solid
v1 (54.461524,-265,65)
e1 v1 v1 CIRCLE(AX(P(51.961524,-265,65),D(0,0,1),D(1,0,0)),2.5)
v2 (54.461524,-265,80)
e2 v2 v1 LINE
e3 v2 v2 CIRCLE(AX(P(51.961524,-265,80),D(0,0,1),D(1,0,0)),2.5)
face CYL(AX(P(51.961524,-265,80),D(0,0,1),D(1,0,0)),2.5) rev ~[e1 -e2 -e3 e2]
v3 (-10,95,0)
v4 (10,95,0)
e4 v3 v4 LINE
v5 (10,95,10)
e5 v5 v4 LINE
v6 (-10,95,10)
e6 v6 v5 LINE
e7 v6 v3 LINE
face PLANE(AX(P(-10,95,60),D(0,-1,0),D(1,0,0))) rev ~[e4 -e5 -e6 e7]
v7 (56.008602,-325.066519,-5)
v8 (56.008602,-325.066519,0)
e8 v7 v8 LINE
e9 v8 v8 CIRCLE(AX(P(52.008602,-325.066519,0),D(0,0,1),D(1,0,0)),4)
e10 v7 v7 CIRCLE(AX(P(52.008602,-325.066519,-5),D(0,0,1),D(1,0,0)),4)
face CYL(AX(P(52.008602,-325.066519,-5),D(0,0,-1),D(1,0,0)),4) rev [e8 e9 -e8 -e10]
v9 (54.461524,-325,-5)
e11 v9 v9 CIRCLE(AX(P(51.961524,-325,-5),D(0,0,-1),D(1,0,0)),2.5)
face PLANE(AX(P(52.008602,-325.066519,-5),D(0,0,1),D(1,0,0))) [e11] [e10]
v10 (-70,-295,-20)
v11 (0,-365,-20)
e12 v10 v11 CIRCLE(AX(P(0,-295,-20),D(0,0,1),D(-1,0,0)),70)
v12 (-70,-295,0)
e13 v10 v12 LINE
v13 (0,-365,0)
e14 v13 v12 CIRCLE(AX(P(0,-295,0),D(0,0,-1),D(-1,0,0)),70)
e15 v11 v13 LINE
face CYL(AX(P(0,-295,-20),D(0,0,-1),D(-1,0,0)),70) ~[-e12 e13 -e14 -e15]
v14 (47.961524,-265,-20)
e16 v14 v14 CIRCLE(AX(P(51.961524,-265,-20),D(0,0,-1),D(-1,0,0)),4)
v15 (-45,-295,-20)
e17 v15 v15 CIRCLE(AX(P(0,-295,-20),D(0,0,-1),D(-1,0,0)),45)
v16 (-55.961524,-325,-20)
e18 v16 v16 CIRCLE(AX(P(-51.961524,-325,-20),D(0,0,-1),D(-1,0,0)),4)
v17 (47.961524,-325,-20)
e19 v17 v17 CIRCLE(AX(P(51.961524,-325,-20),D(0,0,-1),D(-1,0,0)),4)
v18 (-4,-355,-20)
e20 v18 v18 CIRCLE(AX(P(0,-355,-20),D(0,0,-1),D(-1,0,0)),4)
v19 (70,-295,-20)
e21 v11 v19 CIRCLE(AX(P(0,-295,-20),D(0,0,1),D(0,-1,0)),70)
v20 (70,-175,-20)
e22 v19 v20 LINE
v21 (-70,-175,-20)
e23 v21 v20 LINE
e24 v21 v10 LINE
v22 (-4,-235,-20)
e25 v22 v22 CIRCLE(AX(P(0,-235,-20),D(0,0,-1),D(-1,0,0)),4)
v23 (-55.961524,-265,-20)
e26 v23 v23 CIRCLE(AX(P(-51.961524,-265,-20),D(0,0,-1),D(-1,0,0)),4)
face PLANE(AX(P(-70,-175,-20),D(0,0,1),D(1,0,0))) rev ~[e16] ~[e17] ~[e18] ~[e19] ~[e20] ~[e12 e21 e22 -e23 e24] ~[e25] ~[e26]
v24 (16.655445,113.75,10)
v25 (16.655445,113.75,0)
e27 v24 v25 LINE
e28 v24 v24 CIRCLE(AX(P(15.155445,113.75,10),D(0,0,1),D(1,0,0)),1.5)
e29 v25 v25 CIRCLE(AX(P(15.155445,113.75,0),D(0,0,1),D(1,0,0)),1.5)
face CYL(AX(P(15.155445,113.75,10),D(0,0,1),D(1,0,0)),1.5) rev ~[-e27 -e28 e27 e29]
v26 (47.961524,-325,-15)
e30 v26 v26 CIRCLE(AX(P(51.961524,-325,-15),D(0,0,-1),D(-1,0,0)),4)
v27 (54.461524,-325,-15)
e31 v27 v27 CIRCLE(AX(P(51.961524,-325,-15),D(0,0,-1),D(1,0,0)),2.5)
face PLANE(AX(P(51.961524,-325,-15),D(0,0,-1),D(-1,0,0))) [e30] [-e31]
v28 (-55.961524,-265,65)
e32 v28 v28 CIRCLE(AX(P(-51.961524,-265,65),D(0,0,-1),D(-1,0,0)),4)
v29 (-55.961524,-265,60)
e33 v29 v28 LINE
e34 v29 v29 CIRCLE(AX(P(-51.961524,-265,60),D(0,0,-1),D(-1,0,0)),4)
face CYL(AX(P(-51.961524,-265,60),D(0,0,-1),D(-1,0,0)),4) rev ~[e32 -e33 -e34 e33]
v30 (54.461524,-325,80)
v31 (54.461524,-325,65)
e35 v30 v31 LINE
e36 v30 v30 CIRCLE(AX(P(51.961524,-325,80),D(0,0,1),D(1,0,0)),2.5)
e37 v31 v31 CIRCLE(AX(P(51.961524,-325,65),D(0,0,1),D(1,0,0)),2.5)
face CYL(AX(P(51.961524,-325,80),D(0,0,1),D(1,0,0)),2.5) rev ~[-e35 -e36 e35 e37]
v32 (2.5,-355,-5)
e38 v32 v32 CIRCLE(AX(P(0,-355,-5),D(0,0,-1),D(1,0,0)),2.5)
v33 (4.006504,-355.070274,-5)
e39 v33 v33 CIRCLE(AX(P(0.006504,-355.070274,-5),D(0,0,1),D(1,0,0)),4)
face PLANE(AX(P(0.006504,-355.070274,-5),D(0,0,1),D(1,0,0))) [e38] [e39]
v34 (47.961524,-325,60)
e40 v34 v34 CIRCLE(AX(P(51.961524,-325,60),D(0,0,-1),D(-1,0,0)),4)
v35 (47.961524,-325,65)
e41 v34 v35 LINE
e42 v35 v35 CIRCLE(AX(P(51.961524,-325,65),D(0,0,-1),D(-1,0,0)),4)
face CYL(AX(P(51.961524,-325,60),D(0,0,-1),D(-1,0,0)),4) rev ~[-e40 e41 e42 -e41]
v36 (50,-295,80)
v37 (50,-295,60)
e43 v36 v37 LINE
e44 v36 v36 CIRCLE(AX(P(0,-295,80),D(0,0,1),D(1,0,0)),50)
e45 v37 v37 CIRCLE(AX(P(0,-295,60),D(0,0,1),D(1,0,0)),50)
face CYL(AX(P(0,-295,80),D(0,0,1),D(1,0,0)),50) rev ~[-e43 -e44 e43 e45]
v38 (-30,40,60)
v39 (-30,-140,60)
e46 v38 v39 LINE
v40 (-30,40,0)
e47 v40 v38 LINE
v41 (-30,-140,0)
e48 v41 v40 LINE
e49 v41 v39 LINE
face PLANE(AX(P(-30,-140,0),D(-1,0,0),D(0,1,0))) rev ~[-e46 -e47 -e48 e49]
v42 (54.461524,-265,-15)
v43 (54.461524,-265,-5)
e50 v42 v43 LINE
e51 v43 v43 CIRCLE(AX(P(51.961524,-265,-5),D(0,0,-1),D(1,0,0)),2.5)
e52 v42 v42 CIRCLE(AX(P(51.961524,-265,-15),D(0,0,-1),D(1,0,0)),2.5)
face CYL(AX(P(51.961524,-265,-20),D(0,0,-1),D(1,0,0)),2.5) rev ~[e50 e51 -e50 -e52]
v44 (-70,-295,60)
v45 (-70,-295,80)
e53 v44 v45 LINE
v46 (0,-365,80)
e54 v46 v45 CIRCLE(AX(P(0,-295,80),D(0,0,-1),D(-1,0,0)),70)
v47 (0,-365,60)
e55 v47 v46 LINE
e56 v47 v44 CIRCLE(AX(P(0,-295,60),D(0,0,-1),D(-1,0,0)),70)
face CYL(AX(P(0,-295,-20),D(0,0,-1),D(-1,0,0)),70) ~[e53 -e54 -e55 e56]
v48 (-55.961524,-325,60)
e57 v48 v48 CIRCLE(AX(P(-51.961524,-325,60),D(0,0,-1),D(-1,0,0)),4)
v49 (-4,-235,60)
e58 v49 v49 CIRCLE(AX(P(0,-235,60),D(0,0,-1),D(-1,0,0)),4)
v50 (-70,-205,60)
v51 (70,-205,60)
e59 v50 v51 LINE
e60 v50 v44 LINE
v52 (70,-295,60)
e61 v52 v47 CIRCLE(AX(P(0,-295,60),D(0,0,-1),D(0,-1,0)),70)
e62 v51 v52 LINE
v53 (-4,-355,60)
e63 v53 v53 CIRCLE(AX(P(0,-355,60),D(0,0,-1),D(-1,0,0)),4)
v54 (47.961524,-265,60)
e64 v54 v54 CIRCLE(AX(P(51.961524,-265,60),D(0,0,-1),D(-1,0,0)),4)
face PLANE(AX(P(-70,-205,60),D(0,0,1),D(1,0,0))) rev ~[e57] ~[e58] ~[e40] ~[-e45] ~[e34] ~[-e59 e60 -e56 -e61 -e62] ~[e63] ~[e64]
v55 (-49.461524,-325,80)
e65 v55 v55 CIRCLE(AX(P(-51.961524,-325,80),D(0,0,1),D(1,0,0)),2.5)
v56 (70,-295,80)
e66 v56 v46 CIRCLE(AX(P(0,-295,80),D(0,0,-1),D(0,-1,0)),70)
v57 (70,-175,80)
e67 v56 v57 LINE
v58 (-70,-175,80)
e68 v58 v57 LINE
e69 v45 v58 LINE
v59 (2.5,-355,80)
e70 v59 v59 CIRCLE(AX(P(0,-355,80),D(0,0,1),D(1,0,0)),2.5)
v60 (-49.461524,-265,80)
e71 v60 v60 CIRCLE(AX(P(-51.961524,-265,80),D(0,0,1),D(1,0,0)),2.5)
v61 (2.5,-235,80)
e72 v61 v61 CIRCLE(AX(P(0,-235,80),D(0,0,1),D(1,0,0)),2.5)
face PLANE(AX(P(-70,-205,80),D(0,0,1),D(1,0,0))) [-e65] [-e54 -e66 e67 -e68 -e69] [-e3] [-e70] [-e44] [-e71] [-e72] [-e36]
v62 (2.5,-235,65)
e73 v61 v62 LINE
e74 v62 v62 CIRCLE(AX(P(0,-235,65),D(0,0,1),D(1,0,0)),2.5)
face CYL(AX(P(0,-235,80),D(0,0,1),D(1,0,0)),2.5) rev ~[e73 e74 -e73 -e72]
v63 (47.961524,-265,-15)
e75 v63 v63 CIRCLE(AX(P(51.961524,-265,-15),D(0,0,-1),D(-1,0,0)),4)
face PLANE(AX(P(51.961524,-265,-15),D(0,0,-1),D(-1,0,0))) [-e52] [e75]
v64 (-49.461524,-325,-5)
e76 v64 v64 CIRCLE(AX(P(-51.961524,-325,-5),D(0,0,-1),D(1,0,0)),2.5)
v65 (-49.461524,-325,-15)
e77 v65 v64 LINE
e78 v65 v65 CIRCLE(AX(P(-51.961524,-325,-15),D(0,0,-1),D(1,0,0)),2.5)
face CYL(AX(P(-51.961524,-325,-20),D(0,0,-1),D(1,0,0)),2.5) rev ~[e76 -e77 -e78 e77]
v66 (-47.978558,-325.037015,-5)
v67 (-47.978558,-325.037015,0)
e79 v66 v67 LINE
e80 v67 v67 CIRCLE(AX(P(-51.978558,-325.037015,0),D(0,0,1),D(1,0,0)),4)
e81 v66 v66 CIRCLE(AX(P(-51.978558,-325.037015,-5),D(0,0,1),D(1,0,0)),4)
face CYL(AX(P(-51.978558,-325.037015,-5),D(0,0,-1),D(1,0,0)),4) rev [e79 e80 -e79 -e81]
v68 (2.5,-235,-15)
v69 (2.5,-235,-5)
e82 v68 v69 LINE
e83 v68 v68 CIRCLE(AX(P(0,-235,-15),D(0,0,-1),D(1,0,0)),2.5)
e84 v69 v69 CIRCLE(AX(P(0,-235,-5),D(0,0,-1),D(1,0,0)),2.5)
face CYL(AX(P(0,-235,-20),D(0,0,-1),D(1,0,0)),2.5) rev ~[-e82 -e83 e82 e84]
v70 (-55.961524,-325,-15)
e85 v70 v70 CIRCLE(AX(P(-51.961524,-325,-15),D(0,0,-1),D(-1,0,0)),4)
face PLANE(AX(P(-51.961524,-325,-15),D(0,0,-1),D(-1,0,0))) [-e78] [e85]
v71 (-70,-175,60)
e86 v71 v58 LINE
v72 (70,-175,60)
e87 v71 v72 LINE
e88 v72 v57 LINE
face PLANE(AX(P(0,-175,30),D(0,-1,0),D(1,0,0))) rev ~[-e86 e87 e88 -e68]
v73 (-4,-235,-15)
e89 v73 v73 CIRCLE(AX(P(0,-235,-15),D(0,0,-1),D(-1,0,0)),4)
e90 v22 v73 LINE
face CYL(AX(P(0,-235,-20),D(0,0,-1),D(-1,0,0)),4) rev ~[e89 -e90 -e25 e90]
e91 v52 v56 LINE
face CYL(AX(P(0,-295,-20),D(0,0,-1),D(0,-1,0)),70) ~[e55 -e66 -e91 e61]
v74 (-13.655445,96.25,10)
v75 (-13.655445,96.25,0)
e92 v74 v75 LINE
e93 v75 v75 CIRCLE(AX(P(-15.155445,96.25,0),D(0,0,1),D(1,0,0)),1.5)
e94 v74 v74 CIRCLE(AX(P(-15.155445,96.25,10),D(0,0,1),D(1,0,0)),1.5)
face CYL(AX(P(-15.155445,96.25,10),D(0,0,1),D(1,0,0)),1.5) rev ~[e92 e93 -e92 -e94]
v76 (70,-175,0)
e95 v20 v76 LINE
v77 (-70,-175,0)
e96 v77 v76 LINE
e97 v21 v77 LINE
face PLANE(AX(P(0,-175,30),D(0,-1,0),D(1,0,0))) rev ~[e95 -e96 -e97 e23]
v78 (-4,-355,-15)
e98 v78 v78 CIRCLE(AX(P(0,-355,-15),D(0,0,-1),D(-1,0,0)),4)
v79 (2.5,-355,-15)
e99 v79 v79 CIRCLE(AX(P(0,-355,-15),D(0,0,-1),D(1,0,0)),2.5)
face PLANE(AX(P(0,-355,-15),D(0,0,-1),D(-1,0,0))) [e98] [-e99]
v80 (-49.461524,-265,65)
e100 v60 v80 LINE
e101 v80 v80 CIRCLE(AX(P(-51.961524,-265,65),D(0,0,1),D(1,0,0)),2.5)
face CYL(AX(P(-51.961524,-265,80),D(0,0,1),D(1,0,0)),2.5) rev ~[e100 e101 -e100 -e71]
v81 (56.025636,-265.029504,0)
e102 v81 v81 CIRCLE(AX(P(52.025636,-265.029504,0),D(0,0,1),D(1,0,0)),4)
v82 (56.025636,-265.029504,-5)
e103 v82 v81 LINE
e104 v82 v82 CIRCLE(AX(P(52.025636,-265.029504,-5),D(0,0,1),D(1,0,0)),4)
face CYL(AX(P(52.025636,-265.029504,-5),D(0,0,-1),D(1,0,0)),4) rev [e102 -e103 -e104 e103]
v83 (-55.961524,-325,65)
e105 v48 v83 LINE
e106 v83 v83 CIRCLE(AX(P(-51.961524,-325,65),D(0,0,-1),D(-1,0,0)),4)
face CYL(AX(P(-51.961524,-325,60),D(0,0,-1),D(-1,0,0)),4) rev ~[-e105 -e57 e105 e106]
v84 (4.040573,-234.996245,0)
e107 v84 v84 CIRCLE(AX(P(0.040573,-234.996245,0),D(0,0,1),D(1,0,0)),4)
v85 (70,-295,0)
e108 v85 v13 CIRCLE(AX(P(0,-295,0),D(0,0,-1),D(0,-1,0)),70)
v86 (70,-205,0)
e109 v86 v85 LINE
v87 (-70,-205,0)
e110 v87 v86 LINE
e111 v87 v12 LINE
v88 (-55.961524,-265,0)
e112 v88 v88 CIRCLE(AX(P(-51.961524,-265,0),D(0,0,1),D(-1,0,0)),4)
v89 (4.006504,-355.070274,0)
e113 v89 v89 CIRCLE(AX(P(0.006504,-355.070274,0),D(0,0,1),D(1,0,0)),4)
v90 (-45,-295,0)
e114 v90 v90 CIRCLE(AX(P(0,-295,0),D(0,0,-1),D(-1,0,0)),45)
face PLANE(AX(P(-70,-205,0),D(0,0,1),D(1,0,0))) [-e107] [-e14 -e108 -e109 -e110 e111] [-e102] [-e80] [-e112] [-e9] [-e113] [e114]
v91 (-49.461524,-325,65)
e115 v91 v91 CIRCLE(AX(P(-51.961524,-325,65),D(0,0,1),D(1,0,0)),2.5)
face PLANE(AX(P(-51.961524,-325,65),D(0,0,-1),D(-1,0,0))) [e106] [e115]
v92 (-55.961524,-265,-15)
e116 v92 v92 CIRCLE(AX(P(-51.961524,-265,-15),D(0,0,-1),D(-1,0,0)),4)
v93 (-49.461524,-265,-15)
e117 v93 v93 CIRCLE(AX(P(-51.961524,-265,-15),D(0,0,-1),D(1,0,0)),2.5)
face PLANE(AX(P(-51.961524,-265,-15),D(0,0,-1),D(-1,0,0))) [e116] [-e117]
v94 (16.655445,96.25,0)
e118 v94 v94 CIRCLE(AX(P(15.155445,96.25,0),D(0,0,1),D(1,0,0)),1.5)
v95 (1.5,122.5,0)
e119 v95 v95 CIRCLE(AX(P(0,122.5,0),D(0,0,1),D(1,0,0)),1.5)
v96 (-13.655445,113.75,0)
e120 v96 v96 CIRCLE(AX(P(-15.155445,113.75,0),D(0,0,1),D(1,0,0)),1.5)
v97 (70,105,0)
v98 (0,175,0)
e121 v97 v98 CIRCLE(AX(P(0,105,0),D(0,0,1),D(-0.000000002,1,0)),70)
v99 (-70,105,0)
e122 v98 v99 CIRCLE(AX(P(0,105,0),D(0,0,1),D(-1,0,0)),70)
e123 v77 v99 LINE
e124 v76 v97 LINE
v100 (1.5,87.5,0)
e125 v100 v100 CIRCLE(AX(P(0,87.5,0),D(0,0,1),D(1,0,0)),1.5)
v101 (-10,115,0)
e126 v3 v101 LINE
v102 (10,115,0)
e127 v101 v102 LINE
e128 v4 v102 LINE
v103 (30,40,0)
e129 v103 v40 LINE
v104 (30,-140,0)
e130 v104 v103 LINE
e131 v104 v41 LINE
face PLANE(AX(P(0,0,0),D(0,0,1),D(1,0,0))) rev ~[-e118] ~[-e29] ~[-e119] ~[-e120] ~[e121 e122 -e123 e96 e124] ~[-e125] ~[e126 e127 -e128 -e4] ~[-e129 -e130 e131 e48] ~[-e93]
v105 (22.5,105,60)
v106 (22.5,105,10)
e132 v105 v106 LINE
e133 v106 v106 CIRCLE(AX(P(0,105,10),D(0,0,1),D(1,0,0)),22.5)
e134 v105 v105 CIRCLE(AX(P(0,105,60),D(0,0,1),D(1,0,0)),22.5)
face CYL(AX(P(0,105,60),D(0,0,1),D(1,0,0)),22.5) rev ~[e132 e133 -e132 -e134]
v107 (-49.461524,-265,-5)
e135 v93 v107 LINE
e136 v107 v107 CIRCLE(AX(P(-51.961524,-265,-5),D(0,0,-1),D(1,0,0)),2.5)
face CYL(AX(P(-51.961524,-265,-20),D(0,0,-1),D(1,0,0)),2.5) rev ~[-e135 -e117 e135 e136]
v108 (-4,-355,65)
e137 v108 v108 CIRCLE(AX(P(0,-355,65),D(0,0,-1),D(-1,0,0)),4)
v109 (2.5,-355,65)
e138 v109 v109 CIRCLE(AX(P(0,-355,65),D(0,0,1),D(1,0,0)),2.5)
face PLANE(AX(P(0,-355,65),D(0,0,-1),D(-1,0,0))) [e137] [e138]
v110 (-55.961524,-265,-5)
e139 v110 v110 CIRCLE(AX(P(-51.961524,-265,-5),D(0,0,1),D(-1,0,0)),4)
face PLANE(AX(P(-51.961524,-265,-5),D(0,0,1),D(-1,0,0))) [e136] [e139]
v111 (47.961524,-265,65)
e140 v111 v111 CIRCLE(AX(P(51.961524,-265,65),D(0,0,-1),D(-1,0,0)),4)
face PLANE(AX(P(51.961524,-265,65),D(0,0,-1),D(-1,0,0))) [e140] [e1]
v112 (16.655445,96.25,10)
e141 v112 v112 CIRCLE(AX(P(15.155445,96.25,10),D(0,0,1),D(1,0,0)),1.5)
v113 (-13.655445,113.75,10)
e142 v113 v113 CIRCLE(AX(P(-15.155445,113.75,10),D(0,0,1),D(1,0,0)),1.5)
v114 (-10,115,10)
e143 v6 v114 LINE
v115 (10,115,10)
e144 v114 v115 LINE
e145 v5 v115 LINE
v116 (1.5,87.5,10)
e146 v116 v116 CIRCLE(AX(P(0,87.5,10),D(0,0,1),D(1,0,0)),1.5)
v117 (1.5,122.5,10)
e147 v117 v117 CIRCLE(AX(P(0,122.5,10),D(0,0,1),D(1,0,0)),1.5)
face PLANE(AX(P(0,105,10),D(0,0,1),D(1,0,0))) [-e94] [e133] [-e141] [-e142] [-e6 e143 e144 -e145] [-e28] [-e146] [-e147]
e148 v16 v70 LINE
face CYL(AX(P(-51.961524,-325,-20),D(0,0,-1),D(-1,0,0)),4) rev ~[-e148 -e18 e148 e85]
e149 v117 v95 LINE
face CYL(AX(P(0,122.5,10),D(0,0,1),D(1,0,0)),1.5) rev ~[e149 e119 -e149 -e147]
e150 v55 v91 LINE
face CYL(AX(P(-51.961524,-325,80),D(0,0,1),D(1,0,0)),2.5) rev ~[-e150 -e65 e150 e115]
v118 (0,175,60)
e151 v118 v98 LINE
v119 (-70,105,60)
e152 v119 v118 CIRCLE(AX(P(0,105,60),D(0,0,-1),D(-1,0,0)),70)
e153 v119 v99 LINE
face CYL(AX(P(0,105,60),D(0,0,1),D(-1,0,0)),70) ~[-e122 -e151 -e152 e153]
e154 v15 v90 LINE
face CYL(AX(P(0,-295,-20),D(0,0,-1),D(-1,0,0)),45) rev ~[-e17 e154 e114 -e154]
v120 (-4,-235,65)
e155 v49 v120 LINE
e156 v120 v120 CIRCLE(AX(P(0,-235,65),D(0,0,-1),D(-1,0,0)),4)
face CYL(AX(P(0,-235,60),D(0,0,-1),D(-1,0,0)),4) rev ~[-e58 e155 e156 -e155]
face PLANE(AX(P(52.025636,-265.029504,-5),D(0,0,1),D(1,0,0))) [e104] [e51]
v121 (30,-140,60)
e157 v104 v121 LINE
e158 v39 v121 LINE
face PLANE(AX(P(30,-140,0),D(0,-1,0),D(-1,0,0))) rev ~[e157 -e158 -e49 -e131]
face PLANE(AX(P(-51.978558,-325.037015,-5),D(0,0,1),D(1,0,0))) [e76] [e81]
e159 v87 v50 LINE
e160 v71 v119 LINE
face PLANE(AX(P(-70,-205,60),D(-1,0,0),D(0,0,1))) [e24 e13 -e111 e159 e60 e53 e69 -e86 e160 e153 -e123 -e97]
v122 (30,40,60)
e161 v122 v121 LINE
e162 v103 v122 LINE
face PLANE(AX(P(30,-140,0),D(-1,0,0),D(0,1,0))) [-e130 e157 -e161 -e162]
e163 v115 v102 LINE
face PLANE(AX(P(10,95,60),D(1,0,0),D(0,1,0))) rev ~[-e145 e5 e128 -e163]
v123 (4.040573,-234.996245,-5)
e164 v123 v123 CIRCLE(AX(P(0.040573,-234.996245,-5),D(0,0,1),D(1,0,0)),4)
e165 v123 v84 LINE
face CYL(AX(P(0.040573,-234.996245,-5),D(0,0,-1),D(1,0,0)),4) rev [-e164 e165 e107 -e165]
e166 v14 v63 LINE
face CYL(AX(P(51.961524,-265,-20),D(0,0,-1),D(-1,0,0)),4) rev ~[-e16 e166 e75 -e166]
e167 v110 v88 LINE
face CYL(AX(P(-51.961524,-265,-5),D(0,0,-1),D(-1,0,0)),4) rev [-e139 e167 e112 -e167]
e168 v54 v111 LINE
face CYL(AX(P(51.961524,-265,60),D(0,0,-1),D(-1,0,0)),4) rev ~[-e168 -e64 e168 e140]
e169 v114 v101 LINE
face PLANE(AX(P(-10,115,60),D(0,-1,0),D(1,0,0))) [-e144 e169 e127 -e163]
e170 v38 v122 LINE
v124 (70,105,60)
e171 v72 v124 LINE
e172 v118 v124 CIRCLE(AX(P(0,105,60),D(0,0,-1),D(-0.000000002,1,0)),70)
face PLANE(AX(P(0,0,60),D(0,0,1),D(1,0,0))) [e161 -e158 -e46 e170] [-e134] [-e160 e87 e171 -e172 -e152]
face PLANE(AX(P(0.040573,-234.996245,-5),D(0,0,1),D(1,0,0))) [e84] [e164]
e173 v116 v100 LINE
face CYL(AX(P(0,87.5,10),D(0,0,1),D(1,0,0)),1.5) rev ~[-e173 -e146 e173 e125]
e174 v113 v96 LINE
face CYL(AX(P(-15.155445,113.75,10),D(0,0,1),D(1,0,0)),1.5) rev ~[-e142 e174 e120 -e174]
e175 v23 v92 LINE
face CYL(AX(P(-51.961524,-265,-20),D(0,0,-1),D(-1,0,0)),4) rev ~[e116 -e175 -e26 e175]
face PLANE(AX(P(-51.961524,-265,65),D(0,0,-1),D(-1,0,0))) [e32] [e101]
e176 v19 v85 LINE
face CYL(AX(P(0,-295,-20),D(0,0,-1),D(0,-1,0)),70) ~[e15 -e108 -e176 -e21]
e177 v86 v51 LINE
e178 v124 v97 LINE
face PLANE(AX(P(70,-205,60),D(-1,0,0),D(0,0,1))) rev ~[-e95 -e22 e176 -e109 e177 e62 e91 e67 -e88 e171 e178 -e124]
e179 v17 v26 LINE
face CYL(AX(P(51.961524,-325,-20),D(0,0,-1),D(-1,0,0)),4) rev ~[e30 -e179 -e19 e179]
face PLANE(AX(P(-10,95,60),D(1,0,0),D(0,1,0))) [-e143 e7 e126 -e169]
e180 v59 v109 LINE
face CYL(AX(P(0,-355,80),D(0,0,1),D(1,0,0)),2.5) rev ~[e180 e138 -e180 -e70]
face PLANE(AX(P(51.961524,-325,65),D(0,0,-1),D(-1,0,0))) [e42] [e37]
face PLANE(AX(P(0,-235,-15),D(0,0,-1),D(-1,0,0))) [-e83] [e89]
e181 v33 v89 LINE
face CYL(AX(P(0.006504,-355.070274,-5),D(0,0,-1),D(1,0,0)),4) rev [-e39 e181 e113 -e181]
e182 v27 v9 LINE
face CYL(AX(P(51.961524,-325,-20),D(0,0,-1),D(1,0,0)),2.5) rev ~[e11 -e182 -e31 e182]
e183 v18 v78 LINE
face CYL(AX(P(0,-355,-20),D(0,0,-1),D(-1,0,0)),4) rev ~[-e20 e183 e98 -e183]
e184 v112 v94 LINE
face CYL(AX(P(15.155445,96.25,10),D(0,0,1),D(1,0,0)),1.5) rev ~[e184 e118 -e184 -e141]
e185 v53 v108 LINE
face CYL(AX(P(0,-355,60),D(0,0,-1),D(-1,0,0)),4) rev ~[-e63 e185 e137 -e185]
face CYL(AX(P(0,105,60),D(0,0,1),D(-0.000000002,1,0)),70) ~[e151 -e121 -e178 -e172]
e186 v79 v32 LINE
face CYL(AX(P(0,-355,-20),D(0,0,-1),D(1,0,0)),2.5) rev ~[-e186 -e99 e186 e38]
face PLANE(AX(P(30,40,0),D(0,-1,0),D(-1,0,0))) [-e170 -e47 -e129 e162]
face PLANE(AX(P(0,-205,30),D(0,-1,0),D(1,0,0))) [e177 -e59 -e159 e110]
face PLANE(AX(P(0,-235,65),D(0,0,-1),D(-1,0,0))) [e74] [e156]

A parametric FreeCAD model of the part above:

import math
import FreeCAD as App
import Part
import Sketcher

V = App.Vector


def add_polygon(sketch, points):
    """Adds a closed chain of lines whose ends are joined by coincident constraints."""
    first, n = sketch.GeometryCount, len(points)
    for a, b in zip(points, points[1:] + points[:1]):
        sketch.addGeometry(Part.LineSegment(App.Vector(*a, 0), App.Vector(*b, 0)), False)
    for i in range(n):
        sketch.addConstraint(Sketcher.Constraint("Coincident", first + i, 2, first + (i + 1) % n, 1))

doc = App.newDocument("Part")
body = doc.addObject("PartDesign::Body", "Body")

# Sketch on XY plane
sketch1 = body.newObject("Sketcher::SketchObject", "Sketch")
sketch1.AttachmentSupport = (doc.getObject("XY_Plane"), [""])
sketch1.MapMode = "FlatFace"
add_polygon(sketch1, [(-70, 175), (-70, -175), (70, -175), (70, 175)])  # lines 0-3
sketch1.addConstraint([
    Sketcher.Constraint("Vertical", 0),
    Sketcher.Constraint("Horizontal", 1),
    Sketcher.Constraint("Vertical", 2),
    Sketcher.Constraint("Horizontal", 3),
    Sketcher.Constraint("Symmetric", 0, 2, 2, 2, -1, 1),
    Sketcher.Constraint("DistanceX", 1, 1, 1, 2, 140.0),
    Sketcher.Constraint("DistanceY", 0, 2, 0, 1, 350.0),
])
pad1 = body.newObject("PartDesign::Pad", "Pad")
pad1.Profile = sketch1
pad1.Length = 60

# Sketch on XY plane
sketch2 = body.newObject("Sketcher::SketchObject", "Sketch001")
sketch2.AttachmentSupport = (doc.getObject("XY_Plane"), [""])
sketch2.MapMode = "FlatFace"
sketch2.AttachmentOffset = App.Placement(V(0, 0, 60), App.Rotation())
sketch2.addGeometry([
    Part.LineSegment(V(0, 175, 0), V(-70, 175, 0)),
    Part.LineSegment(V(-70, 175, 0), V(-70, 105, 0)),
    Part.ArcOfCircle(Part.Circle(V(0, 105, 0), V(0, 0, 1), 70), math.radians(90), math.radians(180)),
], False)
sketch2.addConstraint([
    Sketcher.Constraint("Coincident", 0, 2, 1, 1),
    Sketcher.Constraint("Tangent", 1, 2, 2, 2),
    Sketcher.Constraint("Tangent", 2, 1, 0, 1),
    Sketcher.Constraint("Horizontal", 0),
    Sketcher.Constraint("Vertical", 1),
    Sketcher.Constraint("PointOnObject", 2, 3, -2),
    Sketcher.Constraint("Radius", 2, 70.0),
    Sketcher.Constraint("DistanceY", -1, 1, 2, 3, 105.0),
])
pocket1 = body.newObject("PartDesign::Pocket", "Pocket")
pocket1.Profile = sketch2
pocket1.Type = "UpToFirst"

# Sketch on XY plane
sketch3 = body.newObject("Sketcher::SketchObject", "Sketch002")
sketch3.AttachmentSupport = (doc.getObject("XY_Plane"), [""])
sketch3.MapMode = "FlatFace"
sketch3.AttachmentOffset = App.Placement(V(0, 0, 60), App.Rotation())
sketch3.addGeometry([
    Part.LineSegment(V(70, 175, 0), V(0, 175, 0)),
    Part.ArcOfCircle(Part.Circle(V(0, 105, 0), V(0, 0, 1), 70), math.radians(0), math.radians(90)),
    Part.LineSegment(V(70, 105, 0), V(70, 175, 0)),
], False)
sketch3.addConstraint([
    Sketcher.Constraint("Tangent", 0, 2, 1, 2),
    Sketcher.Constraint("Tangent", 1, 1, 2, 1),
    Sketcher.Constraint("Coincident", 2, 2, 0, 1),
    Sketcher.Constraint("Horizontal", 0),
    Sketcher.Constraint("Vertical", 2),
    Sketcher.Constraint("PointOnObject", 1, 3, -2),
    Sketcher.Constraint("Radius", 1, 70.0),
    Sketcher.Constraint("DistanceY", -1, 1, 1, 3, 105.0),
])
pocket2 = body.newObject("PartDesign::Pocket", "Pocket001")
pocket2.Profile = sketch3
pocket2.Type = "UpToFirst"

# Sketch on XZ plane
sketch4 = body.newObject("Sketcher::SketchObject", "Sketch003")
sketch4.AttachmentSupport = (doc.getObject("XZ_Plane"), [""])
sketch4.MapMode = "FlatFace"
sketch4.AttachmentOffset = App.Placement(V(0, 0, 175), App.Rotation())
add_polygon(sketch4, [(-70, 80), (-70, -20), (70, -20), (70, 80)])  # lines 0-3
sketch4.addConstraint([
    Sketcher.Constraint("Vertical", 0),
    Sketcher.Constraint("Horizontal", 1),
    Sketcher.Constraint("Vertical", 2),
    Sketcher.Constraint("Horizontal", 3),
    Sketcher.Constraint("DistanceX", 1, 1, 1, 2, 140.0),
    Sketcher.Constraint("DistanceY", 0, 2, 0, 1, 100.0),
    Sketcher.Constraint("DistanceX", 0, 2, -1, 1, 70.0),
    Sketcher.Constraint("DistanceY", 0, 2, -1, 1, 20.0),
])
pad2 = body.newObject("PartDesign::Pad", "Pad001")
pad2.Profile = sketch4
pad2.Length = 30

# Sketch on XZ plane
sketch5 = body.newObject("Sketcher::SketchObject", "Sketch004")
sketch5.AttachmentSupport = (doc.getObject("XZ_Plane"), [""])
sketch5.MapMode = "FlatFace"
sketch5.AttachmentOffset = App.Placement(V(0, 0, 205), App.Rotation())
add_polygon(sketch5, [(-70, 80), (-70, 60), (70, 60), (70, 80)])  # lines 0-3
add_polygon(sketch5, [(-70, 0), (-70, -20), (70, -20), (70, 0)])  # lines 4-7
sketch5.addConstraint([
    Sketcher.Constraint("Vertical", 0),
    Sketcher.Constraint("Horizontal", 1),
    Sketcher.Constraint("Vertical", 2),
    Sketcher.Constraint("Horizontal", 3),
    Sketcher.Constraint("Vertical", 4),
    Sketcher.Constraint("Horizontal", 5),
    Sketcher.Constraint("Vertical", 6),
    Sketcher.Constraint("Horizontal", 7),
    Sketcher.Constraint("Symmetric", 6, 2, 7, 2, -1, 1),
    Sketcher.Constraint("Vertical", 3, 2, 4, 2),
    Sketcher.Constraint("Vertical", 2, 2, 5, 2),
    Sketcher.Constraint("Equal", 2, 4),
    Sketcher.Constraint("DistanceX", 1, 1, 1, 2, 140.0),
    Sketcher.Constraint("DistanceY", 0, 2, 0, 1, 20.0),
    Sketcher.Constraint("DistanceY", -1, 1, 0, 2, 60.0),
])
pad3 = body.newObject("PartDesign::Pad", "Pad002")
pad3.Profile = sketch5
pad3.Length = 160

# Sketch on XY plane
sketch6 = body.newObject("Sketcher::SketchObject", "Sketch005")
sketch6.AttachmentSupport = (doc.getObject("XY_Plane"), [""])
sketch6.MapMode = "FlatFace"
sketch6.AttachmentOffset = App.Placement(V(0, 0, -20), App.Rotation())
sketch6.addGeometry([
    Part.LineSegment(V(70, -295, 0), V(70, -365, 0)),  # 0
    Part.LineSegment(V(70, -365, 0), V(0, -365, 0)),  # 1
    Part.ArcOfCircle(Part.Circle(V(0, -295, 0), V(0, 0, 1), 70), math.radians(-90), math.radians(0)),  # 2
    Part.ArcOfCircle(Part.Circle(V(0, -295, 0), V(0, 0, 1), 70), math.radians(180), math.radians(270)),  # 3
    Part.LineSegment(V(0, -365, 0), V(-70, -365, 0)),  # 4
    Part.LineSegment(V(-70, -365, 0), V(-70, -295, 0)),  # 5
], False)
sketch6.addConstraint([
    Sketcher.Constraint("Coincident", 0, 2, 1, 1),
    Sketcher.Constraint("Tangent", 1, 2, 2, 1),
    Sketcher.Constraint("Tangent", 2, 2, 0, 1),
    Sketcher.Constraint("Tangent", 3, 2, 4, 1),
    Sketcher.Constraint("Coincident", 4, 2, 5, 1),
    Sketcher.Constraint("Tangent", 5, 2, 3, 1),
    Sketcher.Constraint("Vertical", 0),
    Sketcher.Constraint("Horizontal", 1),
    Sketcher.Constraint("Horizontal", 4),
    Sketcher.Constraint("Vertical", 5),
    Sketcher.Constraint("Coincident", 3, 3, 2, 3),
    Sketcher.Constraint("Equal", 2, 3),
    Sketcher.Constraint("PointOnObject", 2, 3, -2),
    Sketcher.Constraint("Radius", 2, 70.0),
    Sketcher.Constraint("DistanceY", 2, 3, -1, 1, 295.0),
])
pocket3 = body.newObject("PartDesign::Pocket", "Pocket002")
pocket3.Profile = sketch6
pocket3.Type = "ThroughAll"
pocket3.Reversed = True

# Sketch on XY plane
sketch7 = body.newObject("Sketcher::SketchObject", "Sketch006")
sketch7.AttachmentSupport = (doc.getObject("XY_Plane"), [""])
sketch7.MapMode = "FlatFace"
add_polygon(sketch7, [(30, 40), (30, -140), (-30, -140), (-30, 40)])  # lines 0-3
sketch7.addConstraint([
    Sketcher.Constraint("Vertical", 0),
    Sketcher.Constraint("Horizontal", 1),
    Sketcher.Constraint("Vertical", 2),
    Sketcher.Constraint("Horizontal", 3),
    Sketcher.Constraint("DistanceX", 1, 2, 1, 1, 60.0),
    Sketcher.Constraint("DistanceY", 0, 2, 0, 1, 180.0),
    Sketcher.Constraint("DistanceX", -1, 1, 0, 2, 30.0),
    Sketcher.Constraint("DistanceY", 0, 2, -1, 1, 140.0),
])
pocket4 = body.newObject("PartDesign::Pocket", "Pocket003")
pocket4.Profile = sketch7
pocket4.Type = "ThroughAll"
pocket4.Reversed = True

# Sketch on XY plane
sketch8 = body.newObject("Sketcher::SketchObject", "Sketch007")
sketch8.AttachmentSupport = (doc.getObject("XY_Plane"), [""])
sketch8.MapMode = "FlatFace"
sketch8.AttachmentOffset = App.Placement(V(0, 0, -20), App.Rotation())
sketch8.addGeometry(Part.Circle(V(0, -295, 0), V(0, 0, 1), 45), False)
sketch8.addConstraint([
    Sketcher.Constraint("PointOnObject", 0, 3, -2),
    Sketcher.Constraint("Diameter", 0, 90.0),
    Sketcher.Constraint("DistanceY", 0, 3, -1, 1, 295.0),
])
pocket5 = body.newObject("PartDesign::Pocket", "Pocket004")
pocket5.Profile = sketch8
pocket5.Type = "UpToFirst"
pocket5.Reversed = True

# Sketch on XY plane
sketch9 = body.newObject("Sketcher::SketchObject", "Sketch008")
sketch9.AttachmentSupport = (doc.getObject("XY_Plane"), [""])
sketch9.MapMode = "FlatFace"
sketch9.AttachmentOffset = App.Placement(V(0, 0, 80), App.Rotation())
sketch9.addGeometry(Part.Circle(V(0, -295, 0), V(0, 0, 1), 50), False)
sketch9.addConstraint([
    Sketcher.Constraint("PointOnObject", 0, 3, -2),
    Sketcher.Constraint("Diameter", 0, 100.0),
    Sketcher.Constraint("DistanceY", 0, 3, -1, 1, 295.0),
])
pocket6 = body.newObject("PartDesign::Pocket", "Pocket005")
pocket6.Profile = sketch9
pocket6.Type = "UpToFirst"

# Sketch on XY plane
sketch10 = body.newObject("Sketcher::SketchObject", "Sketch009")
sketch10.AttachmentSupport = (doc.getObject("XY_Plane"), [""])
sketch10.MapMode = "FlatFace"
sketch10.AttachmentOffset = App.Placement(V(0, 0, 60), App.Rotation())
add_polygon(sketch10, [(-10, 115), (-10, 95), (10, 95), (10, 115)])  # lines 0-3
sketch10.addConstraint([
    Sketcher.Constraint("Vertical", 0),
    Sketcher.Constraint("Horizontal", 1),
    Sketcher.Constraint("Vertical", 2),
    Sketcher.Constraint("Horizontal", 3),
    Sketcher.Constraint("Equal", 3, 0),
    Sketcher.Constraint("DistanceX", 1, 1, 1, 2, 20.0),
    Sketcher.Constraint("DistanceX", 0, 2, -1, 1, 10.0),
    Sketcher.Constraint("DistanceY", -1, 1, 0, 2, 95.0),
])
pocket7 = body.newObject("PartDesign::Pocket", "Pocket006")
pocket7.Profile = sketch10
pocket7.Type = "ThroughAll"

# Sketch on XY plane
sketch11 = body.newObject("Sketcher::SketchObject", "Sketch010")
sketch11.AttachmentSupport = (doc.getObject("XY_Plane"), [""])
sketch11.MapMode = "FlatFace"
sketch11.AttachmentOffset = App.Placement(V(0, 0, 80), App.Rotation())
sketch11.addGeometry(Part.Circle(V(-52, -265, 0), V(0, 0, 1), 2.5), False)
sketch11.addConstraint([
    Sketcher.Constraint("Diameter", 0, 5.0),
    Sketcher.Constraint("DistanceY", 0, 3, -1, 1, 265.0),
    Sketcher.Constraint("DistanceX", 0, 3, -1, 1, 51.961524),
])
pocket8 = body.newObject("PartDesign::Pocket", "Pocket007")
pocket8.Profile = sketch11
pocket8.Type = "UpToFirst"

# Sketch on XY plane
sketch12 = body.newObject("Sketcher::SketchObject", "Sketch011")
sketch12.AttachmentSupport = (doc.getObject("XY_Plane"), [""])
sketch12.MapMode = "FlatFace"
sketch12.AttachmentOffset = App.Placement(V(0, 0, 80), App.Rotation())
sketch12.addGeometry(Part.Circle(V(0, -235, 0), V(0, 0, 1), 2.5), False)
sketch12.addConstraint([
    Sketcher.Constraint("PointOnObject", 0, 3, -2),
    Sketcher.Constraint("Diameter", 0, 5.0),
    Sketcher.Constraint("DistanceY", 0, 3, -1, 1, 235.0),
])
pocket9 = body.newObject("PartDesign::Pocket", "Pocket008")
pocket9.Profile = sketch12
pocket9.Type = "UpToFirst"

# Sketch on XY plane
sketch13 = body.newObject("Sketcher::SketchObject", "Sketch012")
sketch13.AttachmentSupport = (doc.getObject("XY_Plane"), [""])
sketch13.MapMode = "FlatFace"
sketch13.AttachmentOffset = App.Placement(V(0, 0, 80), App.Rotation())
sketch13.addGeometry(Part.Circle(V(52, -265, 0), V(0, 0, 1), 2.5), False)
sketch13.addConstraint([
    Sketcher.Constraint("Diameter", 0, 5.0),
    Sketcher.Constraint("DistanceY", 0, 3, -1, 1, 265.0),
    Sketcher.Constraint("DistanceX", -1, 1, 0, 3, 51.961524),
])
pocket10 = body.newObject("PartDesign::Pocket", "Pocket009")
pocket10.Profile = sketch13
pocket10.Type = "UpToFirst"

# Sketch on XY plane
sketch14 = body.newObject("Sketcher::SketchObject", "Sketch013")
sketch14.AttachmentSupport = (doc.getObject("XY_Plane"), [""])
sketch14.MapMode = "FlatFace"
sketch14.AttachmentOffset = App.Placement(V(0, 0, 80), App.Rotation())
sketch14.addGeometry(Part.Circle(V(52, -325, 0), V(0, 0, 1), 2.5), False)
sketch14.addConstraint([
    Sketcher.Constraint("Diameter", 0, 5.0),
    Sketcher.Constraint("DistanceY", 0, 3, -1, 1, 325.0),
    Sketcher.Constraint("DistanceX", -1, 1, 0, 3, 51.961524),
])
pocket11 = body.newObject("PartDesign::Pocket", "Pocket010")
pocket11.Profile = sketch14
pocket11.Type = "UpToFirst"

# Sketch on XY plane
sketch15 = body.newObject("Sketcher::SketchObject", "Sketch014")
sketch15.AttachmentSupport = (doc.getObject("XY_Plane"), [""])
sketch15.MapMode = "FlatFace"
sketch15.AttachmentOffset = App.Placement(V(0, 0, 80), App.Rotation())
sketch15.addGeometry(Part.Circle(V(0, -355, 0), V(0, 0, 1), 2.5), False)
sketch15.addConstraint([
    Sketcher.Constraint("PointOnObject", 0, 3, -2),
    Sketcher.Constraint("Diameter", 0, 5.0),
    Sketcher.Constraint("DistanceY", 0, 3, -1, 1, 355.0),
])
pocket12 = body.newObject("PartDesign::Pocket", "Pocket011")
pocket12.Profile = sketch15
pocket12.Type = "UpToFirst"

# Sketch on XY plane
sketch16 = body.newObject("Sketcher::SketchObject", "Sketch015")
sketch16.AttachmentSupport = (doc.getObject("XY_Plane"), [""])
sketch16.MapMode = "FlatFace"
sketch16.AttachmentOffset = App.Placement(V(0, 0, 80), App.Rotation())
sketch16.addGeometry(Part.Circle(V(-52, -325, 0), V(0, 0, 1), 2.5), False)
sketch16.addConstraint([
    Sketcher.Constraint("Diameter", 0, 5.0),
    Sketcher.Constraint("DistanceY", 0, 3, -1, 1, 325.0),
    Sketcher.Constraint("DistanceX", 0, 3, -1, 1, 51.961524),
])
pocket13 = body.newObject("PartDesign::Pocket", "Pocket012")
pocket13.Profile = sketch16
pocket13.Type = "UpToFirst"

# Sketch on XY plane
sketch17 = body.newObject("Sketcher::SketchObject", "Sketch016")
sketch17.AttachmentSupport = (doc.getObject("XY_Plane"), [""])
sketch17.MapMode = "FlatFace"
sketch17.AttachmentOffset = App.Placement(V(0, 0, 60), App.Rotation())
sketch17.addGeometry([
    Part.Circle(V(52, -325, 0), V(0, 0, 1), 4),  # 0
    Part.Circle(V(52, -265, 0), V(0, 0, 1), 4),  # 1
    Part.Circle(V(0, -235, 0), V(0, 0, 1), 4),  # 2
    Part.Circle(V(-52, -265, 0), V(0, 0, 1), 4),  # 3
    Part.Circle(V(-52, -325, 0), V(0, 0, 1), 4),  # 4
    Part.Circle(V(0, -355, 0), V(0, 0, 1), 4),  # 5
], False)
sketch17.addConstraint([
    Sketcher.Constraint("Equal", 0, 1),
    Sketcher.Constraint("Equal", 1, 2),
    Sketcher.Constraint("Equal", 2, 3),
    Sketcher.Constraint("Equal", 3, 4),
    Sketcher.Constraint("Equal", 4, 5),
    Sketcher.Constraint("Symmetric", 1, 3, 3, 3, -2),
    Sketcher.Constraint("Symmetric", 0, 3, 4, 3, -2),
    Sketcher.Constraint("PointOnObject", 2, 3, -2),
    Sketcher.Constraint("PointOnObject", 5, 3, -2),
    Sketcher.Constraint("Vertical", 0, 3, 1, 3),
    Sketcher.Constraint("Diameter", 0, 8.0),
    Sketcher.Constraint("DistanceY", 0, 3, -1, 1, 325.0),
    Sketcher.Constraint("DistanceY", 1, 3, -1, 1, 265.0),
    Sketcher.Constraint("DistanceY", 2, 3, -1, 1, 235.0),
    Sketcher.Constraint("DistanceY", 5, 3, -1, 1, 355.0),
    Sketcher.Constraint("DistanceX", 3, 3, 1, 3, 103.923048),
])
pocket14 = body.newObject("PartDesign::Pocket", "Pocket013")
pocket14.Profile = sketch17
pocket14.Length = 5
pocket14.Reversed = True

# Sketch on XY plane
sketch18 = body.newObject("Sketcher::SketchObject", "Sketch017")
sketch18.AttachmentSupport = (doc.getObject("XY_Plane"), [""])
sketch18.MapMode = "FlatFace"
sketch18.AttachmentOffset = App.Placement(V(0, 0, 60), App.Rotation())
sketch18.addGeometry(Part.Circle(V(0, 105, 0), V(0, 0, 1), 22), False)  # 0
add_polygon(sketch18, [(10, 95), (-10, 95), (-10, 115), (10, 115)])  # lines 1-4
sketch18.addConstraint([
    Sketcher.Constraint("Horizontal", 1),
    Sketcher.Constraint("Vertical", 2),
    Sketcher.Constraint("Horizontal", 3),
    Sketcher.Constraint("Vertical", 4),
    Sketcher.Constraint("PointOnObject", 0, 3, -2),
    Sketcher.Constraint("Equal", 3, 2),
    Sketcher.Constraint("Diameter", 0, 45.0),
    Sketcher.Constraint("DistanceX", 1, 2, 1, 1, 20.0),
    Sketcher.Constraint("DistanceY", -1, 1, 0, 3, 105.0),
    Sketcher.Constraint("DistanceX", 1, 2, -1, 1, 10.0),
    Sketcher.Constraint("DistanceY", -1, 1, 1, 2, 95.0),
])
pocket15 = body.newObject("PartDesign::Pocket", "Pocket014")
pocket15.Profile = sketch18
pocket15.Length = 50

# Sketch on XY plane
sketch19 = body.newObject("Sketcher::SketchObject", "Sketch018")
sketch19.AttachmentSupport = (doc.getObject("XY_Plane"), [""])
sketch19.MapMode = "FlatFace"
sketch19.AttachmentOffset = App.Placement(V(0, 0, 10), App.Rotation())
sketch19.addGeometry([
    Part.Circle(V(0, 122.5, 0), V(0, 0, 1), 1.5),  # 0
    Part.Circle(V(15.2, 113.8, 0), V(0, 0, 1), 1.5),  # 1
    Part.Circle(V(15.2, 96.2, 0), V(0, 0, 1), 1.5),  # 2
    Part.Circle(V(0, 87.5, 0), V(0, 0, 1), 1.5),  # 3
    Part.Circle(V(-15.2, 96.2, 0), V(0, 0, 1), 1.5),  # 4
    Part.Circle(V(-15.2, 113.8, 0), V(0, 0, 1), 1.5),  # 5
], False)
sketch19.addConstraint([
    Sketcher.Constraint("Equal", 0, 1),
    Sketcher.Constraint("Equal", 1, 2),
    Sketcher.Constraint("Equal", 2, 3),
    Sketcher.Constraint("Equal", 3, 4),
    Sketcher.Constraint("Equal", 4, 5),
    Sketcher.Constraint("Symmetric", 2, 3, 4, 3, -2),
    Sketcher.Constraint("Symmetric", 1, 3, 5, 3, -2),
    Sketcher.Constraint("PointOnObject", 0, 3, -2),
    Sketcher.Constraint("PointOnObject", 3, 3, -2),
    Sketcher.Constraint("Vertical", 1, 3, 2, 3),
    Sketcher.Constraint("Diameter", 0, 3.0),
    Sketcher.Constraint("DistanceY", 3, 3, 0, 3, 35.0),
    Sketcher.Constraint("DistanceY", -1, 1, 0, 3, 122.5),
    Sketcher.Constraint("DistanceY", 2, 3, 1, 3, 17.5),
    Sketcher.Constraint("DistanceY", -1, 1, 1, 3, 113.75),
    Sketcher.Constraint("DistanceX", 4, 3, 2, 3, 30.310889),
])
pocket16 = body.newObject("PartDesign::Pocket", "Pocket015")
pocket16.Profile = sketch19
pocket16.Type = "ThroughAll"

# Sketch on XY plane
sketch20 = body.newObject("Sketcher::SketchObject", "Sketch019")
sketch20.AttachmentSupport = (doc.getObject("XY_Plane"), [""])
sketch20.MapMode = "FlatFace"
sketch20.AttachmentOffset = App.Placement(V(0, 0, -20), App.Rotation())
sketch20.addGeometry([
    Part.Circle(V(0, -235, 0), V(0, 0, 1), 4),  # 0
    Part.Circle(V(52, -265, 0), V(0, 0, 1), 4),  # 1
    Part.Circle(V(52, -325, 0), V(0, 0, 1), 4),  # 2
    Part.Circle(V(0, -355, 0), V(0, 0, 1), 4),  # 3
    Part.Circle(V(-52, -325, 0), V(0, 0, 1), 4),  # 4
    Part.Circle(V(-52, -265, 0), V(0, 0, 1), 4),  # 5
], False)
sketch20.addConstraint([
    Sketcher.Constraint("Equal", 0, 1),
    Sketcher.Constraint("Equal", 1, 2),
    Sketcher.Constraint("Equal", 2, 3),
    Sketcher.Constraint("Equal", 3, 4),
    Sketcher.Constraint("Equal", 4, 5),
    Sketcher.Constraint("Symmetric", 2, 3, 4, 3, -2),
    Sketcher.Constraint("Symmetric", 1, 3, 5, 3, -2),
    Sketcher.Constraint("PointOnObject", 0, 3, -2),
    Sketcher.Constraint("PointOnObject", 3, 3, -2),
    Sketcher.Constraint("Vertical", 1, 3, 2, 3),
    Sketcher.Constraint("Diameter", 0, 8.0),
    Sketcher.Constraint("DistanceY", 0, 3, -1, 1, 235.0),
    Sketcher.Constraint("DistanceY", 1, 3, -1, 1, 265.0),
    Sketcher.Constraint("DistanceY", 2, 3, -1, 1, 325.0),
    Sketcher.Constraint("DistanceY", 3, 3, -1, 1, 355.0),
    Sketcher.Constraint("DistanceX", 4, 3, 2, 3, 103.923048),
])
pocket17 = body.newObject("PartDesign::Pocket", "Pocket016")
pocket17.Profile = sketch20
pocket17.Length = 5
pocket17.Reversed = True

# Sketch on XY plane
sketch21 = body.newObject("Sketcher::SketchObject", "Sketch020")
sketch21.AttachmentSupport = (doc.getObject("XY_Plane"), [""])
sketch21.MapMode = "FlatFace"
sketch21.AttachmentOffset = App.Placement(V(0, 0, -20), App.Rotation())
sketch21.addGeometry([
    Part.Circle(V(52, -265, 0), V(0, 0, 1), 2.5),  # 0
    Part.Circle(V(52, -325, 0), V(0, 0, 1), 2.5),  # 1
    Part.Circle(V(0, -355, 0), V(0, 0, 1), 2.5),  # 2
    Part.Circle(V(-52, -325, 0), V(0, 0, 1), 2.5),  # 3
    Part.Circle(V(-52, -265, 0), V(0, 0, 1), 2.5),  # 4
    Part.Circle(V(0, -235, 0), V(0, 0, 1), 2.5),  # 5
], False)
sketch21.addConstraint([
    Sketcher.Constraint("Equal", 0, 1),
    Sketcher.Constraint("Equal", 1, 2),
    Sketcher.Constraint("Equal", 2, 3),
    Sketcher.Constraint("Equal", 3, 4),
    Sketcher.Constraint("Equal", 4, 5),
    Sketcher.Constraint("Symmetric", 1, 3, 3, 3, -2),
    Sketcher.Constraint("Symmetric", 0, 3, 4, 3, -2),
    Sketcher.Constraint("PointOnObject", 2, 3, -2),
    Sketcher.Constraint("PointOnObject", 5, 3, -2),
    Sketcher.Constraint("Vertical", 0, 3, 1, 3),
    Sketcher.Constraint("Diameter", 0, 5.0),
    Sketcher.Constraint("DistanceY", 0, 3, -1, 1, 265.0),
    Sketcher.Constraint("DistanceY", 1, 3, -1, 1, 325.0),
    Sketcher.Constraint("DistanceY", 2, 3, -1, 1, 355.0),
    Sketcher.Constraint("DistanceY", 5, 3, -1, 1, 235.0),
    Sketcher.Constraint("DistanceX", 3, 3, 1, 3, 103.923048),
])
pocket18 = body.newObject("PartDesign::Pocket", "Pocket017")
pocket18.Profile = sketch21
pocket18.Type = "ThroughAll"
pocket18.Reversed = True

# Sketch on XY plane
sketch22 = body.newObject("Sketcher::SketchObject", "Sketch021")
sketch22.AttachmentSupport = (doc.getObject("XY_Plane"), [""])
sketch22.MapMode = "FlatFace"
sketch22.AttachmentOffset = App.Placement(V(0, 0, -5), App.Rotation())
sketch22.addGeometry([
    Part.Circle(V(-52, -265, 0), V(0, 0, 1), 4),  # 0
    Part.Circle(V(0, -235, 0), V(0, 0, 1), 4),  # 1
    Part.Circle(V(52, -265, 0), V(0, 0, 1), 4),  # 2
    Part.Circle(V(52, -325.1, 0), V(0, 0, 1), 4),  # 3
    Part.Circle(V(0, -355.1, 0), V(0, 0, 1), 4),  # 4
    Part.Circle(V(-52, -325, 0), V(0, 0, 1), 4),  # 5
], False)
sketch22.addConstraint([
    Sketcher.Constraint("Equal", 0, 1),
    Sketcher.Constraint("Equal", 1, 2),
    Sketcher.Constraint("Equal", 2, 3),
    Sketcher.Constraint("Equal", 3, 4),
    Sketcher.Constraint("Equal", 4, 5),
    Sketcher.Constraint("Diameter", 0, 8.0),
    Sketcher.Constraint("DistanceY", 0, 3, -1, 1, 265.0),
    Sketcher.Constraint("DistanceX", -1, 1, 3, 3, 52.008602),
    Sketcher.Constraint("DistanceY", 3, 3, -1, 1, 325.066519),
    Sketcher.Constraint("DistanceX", 5, 3, -1, 1, 51.978558),
    Sketcher.Constraint("DistanceY", 2, 3, 1, 3, 30.033259),
    Sketcher.Constraint("DistanceX", 0, 3, 2, 3, 103.98716),
    Sketcher.Constraint("DistanceX", 1, 3, 3, 3, 51.968029),
    Sketcher.Constraint("DistanceX", 4, 3, 2, 3, 52.019131),
    Sketcher.Constraint("DistanceY", 4, 3, 2, 3, 90.04077),
    Sketcher.Constraint("DistanceX", 4, 3, 1, 3, 0.034068),
    Sketcher.Constraint("DistanceY", 4, 3, 5, 3, 30.033259),
    Sketcher.Constraint("DistanceY", 1, 3, -1, 1, 234.996245),
])
pocket19 = body.newObject("PartDesign::Pocket", "Pocket018")
pocket19.Profile = sketch22
pocket19.Length = 5
pocket19.Reversed = True

doc.recompute()
